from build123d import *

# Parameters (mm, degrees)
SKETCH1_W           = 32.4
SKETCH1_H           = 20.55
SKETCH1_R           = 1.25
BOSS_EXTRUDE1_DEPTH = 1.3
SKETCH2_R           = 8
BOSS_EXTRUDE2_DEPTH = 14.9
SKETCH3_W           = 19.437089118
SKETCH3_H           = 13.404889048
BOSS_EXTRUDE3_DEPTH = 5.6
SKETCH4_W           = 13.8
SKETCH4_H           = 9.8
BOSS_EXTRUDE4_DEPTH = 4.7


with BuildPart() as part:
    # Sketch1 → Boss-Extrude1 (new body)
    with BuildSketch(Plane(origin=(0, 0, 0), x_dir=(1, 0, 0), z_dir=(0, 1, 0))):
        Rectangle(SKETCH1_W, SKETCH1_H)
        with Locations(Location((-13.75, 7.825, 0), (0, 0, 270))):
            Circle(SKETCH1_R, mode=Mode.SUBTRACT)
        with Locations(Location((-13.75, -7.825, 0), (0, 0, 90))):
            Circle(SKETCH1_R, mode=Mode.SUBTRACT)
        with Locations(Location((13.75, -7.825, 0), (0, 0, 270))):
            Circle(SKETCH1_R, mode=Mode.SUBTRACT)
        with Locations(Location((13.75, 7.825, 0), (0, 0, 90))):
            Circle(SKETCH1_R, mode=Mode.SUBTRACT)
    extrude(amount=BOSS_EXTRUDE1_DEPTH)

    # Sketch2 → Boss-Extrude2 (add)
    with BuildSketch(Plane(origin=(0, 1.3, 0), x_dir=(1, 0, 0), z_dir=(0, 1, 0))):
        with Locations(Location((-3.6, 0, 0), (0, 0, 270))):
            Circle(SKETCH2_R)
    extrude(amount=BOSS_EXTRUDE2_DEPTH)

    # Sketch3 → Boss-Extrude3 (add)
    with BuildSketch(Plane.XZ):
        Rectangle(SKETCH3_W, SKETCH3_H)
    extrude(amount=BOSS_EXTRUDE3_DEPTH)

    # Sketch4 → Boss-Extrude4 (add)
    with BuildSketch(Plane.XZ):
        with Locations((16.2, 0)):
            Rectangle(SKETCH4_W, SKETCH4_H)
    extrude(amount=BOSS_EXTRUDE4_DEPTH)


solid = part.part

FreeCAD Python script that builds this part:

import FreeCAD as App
import Part
import Sketcher
from FreeCAD import Vector
Q = App.Units.Quantity

doc = App.newDocument("Part")
body = doc.addObject("PartDesign::Body", "Body")

sketch1 = body.newObject("Sketcher::SketchObject", "Sketch")
sketch1.AttachmentSupport = (doc.getObject("XZ_Plane"), [""])
sketch1.MapMode = "FlatFace"
sketch1.addGeometry([
    Part.LineSegment(Vector(-16.2, -10.3, 0), Vector(-16.2, 10.3, 0)),
    Part.LineSegment(Vector(-16.2, 10.3, 0), Vector(16.2, 10.3, 0)),
    Part.LineSegment(Vector(16.2, 10.3, 0), Vector(16.2, -10.3, 0)),
    Part.LineSegment(Vector(16.2, -10.3, 0), Vector(-16.2, -10.3, 0)),
    Part.Circle(Vector(-13.8, 7.8, 0), Vector(0, 0, 1), 1.2),
    Part.Circle(Vector(13.8, 7.8, 0), Vector(0, 0, 1), 1.2),
    Part.Circle(Vector(-13.8, -7.8, 0), Vector(0, 0, 1), 1.2),
    Part.Circle(Vector(13.8, -7.8, 0), Vector(0, 0, 1), 1.2),
], False)
sketch1.addConstraint([
    Sketcher.Constraint("Coincident", 0, 2, 1, 1),
    Sketcher.Constraint("Coincident", 1, 2, 2, 1),
    Sketcher.Constraint("Coincident", 2, 2, 3, 1),
    Sketcher.Constraint("Coincident", 3, 2, 0, 1),
    Sketcher.Constraint("Vertical", 0),
    Sketcher.Constraint("Horizontal", 1),
    Sketcher.Constraint("Vertical", 2),
    Sketcher.Constraint("Horizontal", 3),
    Sketcher.Constraint("Equal", 4, 5),
    Sketcher.Constraint("Equal", 5, 6),
    Sketcher.Constraint("Equal", 6, 7),
    Sketcher.Constraint("Symmetric", 5, 3, 6, 3, -1, 1),
    Sketcher.Constraint("Symmetric", 4, 3, 7, 3, -1, 1),
    Sketcher.Constraint("Symmetric", 0, 2, 2, 2, -1, 1),
    Sketcher.Constraint("Symmetric", 4, 3, 5, 3, -2),
    Sketcher.Constraint("Diameter", 4, Q("2.5 mm")),
    Sketcher.Constraint("DistanceX", 1, 1, 1, 2, Q("32.4 mm")),
    Sketcher.Constraint("DistanceY", 0, 1, 0, 2, Q("20.55 mm")),
    Sketcher.Constraint("DistanceX", 4, 3, 5, 3, Q("27.5 mm")),
    Sketcher.Constraint("DistanceY", 6, 3, 0, 2, Q("18.1 mm")),
])
pad1 = body.newObject("PartDesign::Pad", "Pad")
pad1.Profile = sketch1
pad1.Length = 1.3
pad1.Reversed = True

sketch2 = body.newObject("Sketcher::SketchObject", "Sketch001")
sketch2.AttachmentSupport = (doc.getObject("XZ_Plane"), [""])
sketch2.MapMode = "FlatFace"
sketch2.AttachmentOffset = App.Placement(Vector(0, 0, -1.3), App.Rotation())
sketch2.addGeometry(Part.Circle(Vector(-4, 0, 0), Vector(0, 0, 1), 8), False)
sketch2.addConstraint([
    Sketcher.Constraint("PointOnObject", 0, 3, -1),
    Sketcher.Constraint("Diameter", 0, Q("16 mm")),
    Sketcher.Constraint("DistanceX", 0, 3, -1, 1, Q("3.6 mm")),
])
pad2 = body.newObject("PartDesign::Pad", "Pad001")
pad2.Profile = sketch2
pad2.Length = 14.9
pad2.Reversed = True

sketch3 = body.newObject("Sketcher::SketchObject", "Sketch002")
sketch3.AttachmentSupport = (doc.getObject("XZ_Plane"), [""])
sketch3.MapMode = "FlatFace"
sketch3.addGeometry([
    Part.LineSegment(Vector(-10, 7, 0), Vector(-10, -7, 0)),
    Part.LineSegment(Vector(-10, -7, 0), Vector(10, -7, 0)),
    Part.LineSegment(Vector(10, -7, 0), Vector(10, 7, 0)),
    Part.LineSegment(Vector(10, 7, 0), Vector(-10, 7, 0)),
], False)
sketch3.addConstraint([
    Sketcher.Constraint("Coincident", 0, 2, 1, 1),
    Sketcher.Constraint("Coincident", 1, 2, 2, 1),
    Sketcher.Constraint("Coincident", 2, 2, 3, 1),
    Sketcher.Constraint("Coincident", 3, 2, 0, 1),
    Sketcher.Constraint("Vertical", 0),
    Sketcher.Constraint("Horizontal", 1),
    Sketcher.Constraint("Vertical", 2),
    Sketcher.Constraint("Horizontal", 3),
    Sketcher.Constraint("Symmetric", 0, 2, 2, 2, -1, 1),
    Sketcher.Constraint("DistanceX", 1, 1, 1, 2, Q("19.437089 mm")),
    Sketcher.Constraint("DistanceY", 0, 2, 0, 1, Q("13.404889 mm")),
])
pad3 = body.newObject("PartDesign::Pad", "Pad002")
pad3.Profile = sketch3
pad3.Length = 5.6

sketch4 = body.newObject("Sketcher::SketchObject", "Sketch003")
sketch4.AttachmentSupport = (doc.getObject("XZ_Plane"), [""])
sketch4.MapMode = "FlatFace"
sketch4.addGeometry([
    Part.LineSegment(Vector(9, 5, 0), Vector(9, -5, 0)),
    Part.LineSegment(Vector(9, -5, 0), Vector(23, -5, 0)),
    Part.LineSegment(Vector(23, -5, 0), Vector(23, 5, 0)),
    Part.LineSegment(Vector(23, 5, 0), Vector(9, 5, 0)),
], False)
sketch4.addConstraint([
    Sketcher.Constraint("Coincident", 0, 2, 1, 1),
    Sketcher.Constraint("Coincident", 1, 2, 2, 1),
    Sketcher.Constraint("Coincident", 2, 2, 3, 1),
    Sketcher.Constraint("Coincident", 3, 2, 0, 1),
    Sketcher.Constraint("Vertical", 0),
    Sketcher.Constraint("Horizontal", 1),
    Sketcher.Constraint("Vertical", 2),
    Sketcher.Constraint("Horizontal", 3),
    Sketcher.Constraint("DistanceX", 1, 1, 1, 2, Q("13.8 mm")),
    Sketcher.Constraint("DistanceY", 0, 2, 0, 1, Q("9.8 mm")),
    Sketcher.Constraint("DistanceX", -1, 1, 0, 2, Q("9.3 mm")),
    Sketcher.Constraint("DistanceY", 0, 2, -1, 1, Q("4.9 mm")),
])
pad4 = body.newObject("PartDesign::Pad", "Pad003")
pad4.Profile = sketch4
pad4.Length = 4.7

doc.recompute()
